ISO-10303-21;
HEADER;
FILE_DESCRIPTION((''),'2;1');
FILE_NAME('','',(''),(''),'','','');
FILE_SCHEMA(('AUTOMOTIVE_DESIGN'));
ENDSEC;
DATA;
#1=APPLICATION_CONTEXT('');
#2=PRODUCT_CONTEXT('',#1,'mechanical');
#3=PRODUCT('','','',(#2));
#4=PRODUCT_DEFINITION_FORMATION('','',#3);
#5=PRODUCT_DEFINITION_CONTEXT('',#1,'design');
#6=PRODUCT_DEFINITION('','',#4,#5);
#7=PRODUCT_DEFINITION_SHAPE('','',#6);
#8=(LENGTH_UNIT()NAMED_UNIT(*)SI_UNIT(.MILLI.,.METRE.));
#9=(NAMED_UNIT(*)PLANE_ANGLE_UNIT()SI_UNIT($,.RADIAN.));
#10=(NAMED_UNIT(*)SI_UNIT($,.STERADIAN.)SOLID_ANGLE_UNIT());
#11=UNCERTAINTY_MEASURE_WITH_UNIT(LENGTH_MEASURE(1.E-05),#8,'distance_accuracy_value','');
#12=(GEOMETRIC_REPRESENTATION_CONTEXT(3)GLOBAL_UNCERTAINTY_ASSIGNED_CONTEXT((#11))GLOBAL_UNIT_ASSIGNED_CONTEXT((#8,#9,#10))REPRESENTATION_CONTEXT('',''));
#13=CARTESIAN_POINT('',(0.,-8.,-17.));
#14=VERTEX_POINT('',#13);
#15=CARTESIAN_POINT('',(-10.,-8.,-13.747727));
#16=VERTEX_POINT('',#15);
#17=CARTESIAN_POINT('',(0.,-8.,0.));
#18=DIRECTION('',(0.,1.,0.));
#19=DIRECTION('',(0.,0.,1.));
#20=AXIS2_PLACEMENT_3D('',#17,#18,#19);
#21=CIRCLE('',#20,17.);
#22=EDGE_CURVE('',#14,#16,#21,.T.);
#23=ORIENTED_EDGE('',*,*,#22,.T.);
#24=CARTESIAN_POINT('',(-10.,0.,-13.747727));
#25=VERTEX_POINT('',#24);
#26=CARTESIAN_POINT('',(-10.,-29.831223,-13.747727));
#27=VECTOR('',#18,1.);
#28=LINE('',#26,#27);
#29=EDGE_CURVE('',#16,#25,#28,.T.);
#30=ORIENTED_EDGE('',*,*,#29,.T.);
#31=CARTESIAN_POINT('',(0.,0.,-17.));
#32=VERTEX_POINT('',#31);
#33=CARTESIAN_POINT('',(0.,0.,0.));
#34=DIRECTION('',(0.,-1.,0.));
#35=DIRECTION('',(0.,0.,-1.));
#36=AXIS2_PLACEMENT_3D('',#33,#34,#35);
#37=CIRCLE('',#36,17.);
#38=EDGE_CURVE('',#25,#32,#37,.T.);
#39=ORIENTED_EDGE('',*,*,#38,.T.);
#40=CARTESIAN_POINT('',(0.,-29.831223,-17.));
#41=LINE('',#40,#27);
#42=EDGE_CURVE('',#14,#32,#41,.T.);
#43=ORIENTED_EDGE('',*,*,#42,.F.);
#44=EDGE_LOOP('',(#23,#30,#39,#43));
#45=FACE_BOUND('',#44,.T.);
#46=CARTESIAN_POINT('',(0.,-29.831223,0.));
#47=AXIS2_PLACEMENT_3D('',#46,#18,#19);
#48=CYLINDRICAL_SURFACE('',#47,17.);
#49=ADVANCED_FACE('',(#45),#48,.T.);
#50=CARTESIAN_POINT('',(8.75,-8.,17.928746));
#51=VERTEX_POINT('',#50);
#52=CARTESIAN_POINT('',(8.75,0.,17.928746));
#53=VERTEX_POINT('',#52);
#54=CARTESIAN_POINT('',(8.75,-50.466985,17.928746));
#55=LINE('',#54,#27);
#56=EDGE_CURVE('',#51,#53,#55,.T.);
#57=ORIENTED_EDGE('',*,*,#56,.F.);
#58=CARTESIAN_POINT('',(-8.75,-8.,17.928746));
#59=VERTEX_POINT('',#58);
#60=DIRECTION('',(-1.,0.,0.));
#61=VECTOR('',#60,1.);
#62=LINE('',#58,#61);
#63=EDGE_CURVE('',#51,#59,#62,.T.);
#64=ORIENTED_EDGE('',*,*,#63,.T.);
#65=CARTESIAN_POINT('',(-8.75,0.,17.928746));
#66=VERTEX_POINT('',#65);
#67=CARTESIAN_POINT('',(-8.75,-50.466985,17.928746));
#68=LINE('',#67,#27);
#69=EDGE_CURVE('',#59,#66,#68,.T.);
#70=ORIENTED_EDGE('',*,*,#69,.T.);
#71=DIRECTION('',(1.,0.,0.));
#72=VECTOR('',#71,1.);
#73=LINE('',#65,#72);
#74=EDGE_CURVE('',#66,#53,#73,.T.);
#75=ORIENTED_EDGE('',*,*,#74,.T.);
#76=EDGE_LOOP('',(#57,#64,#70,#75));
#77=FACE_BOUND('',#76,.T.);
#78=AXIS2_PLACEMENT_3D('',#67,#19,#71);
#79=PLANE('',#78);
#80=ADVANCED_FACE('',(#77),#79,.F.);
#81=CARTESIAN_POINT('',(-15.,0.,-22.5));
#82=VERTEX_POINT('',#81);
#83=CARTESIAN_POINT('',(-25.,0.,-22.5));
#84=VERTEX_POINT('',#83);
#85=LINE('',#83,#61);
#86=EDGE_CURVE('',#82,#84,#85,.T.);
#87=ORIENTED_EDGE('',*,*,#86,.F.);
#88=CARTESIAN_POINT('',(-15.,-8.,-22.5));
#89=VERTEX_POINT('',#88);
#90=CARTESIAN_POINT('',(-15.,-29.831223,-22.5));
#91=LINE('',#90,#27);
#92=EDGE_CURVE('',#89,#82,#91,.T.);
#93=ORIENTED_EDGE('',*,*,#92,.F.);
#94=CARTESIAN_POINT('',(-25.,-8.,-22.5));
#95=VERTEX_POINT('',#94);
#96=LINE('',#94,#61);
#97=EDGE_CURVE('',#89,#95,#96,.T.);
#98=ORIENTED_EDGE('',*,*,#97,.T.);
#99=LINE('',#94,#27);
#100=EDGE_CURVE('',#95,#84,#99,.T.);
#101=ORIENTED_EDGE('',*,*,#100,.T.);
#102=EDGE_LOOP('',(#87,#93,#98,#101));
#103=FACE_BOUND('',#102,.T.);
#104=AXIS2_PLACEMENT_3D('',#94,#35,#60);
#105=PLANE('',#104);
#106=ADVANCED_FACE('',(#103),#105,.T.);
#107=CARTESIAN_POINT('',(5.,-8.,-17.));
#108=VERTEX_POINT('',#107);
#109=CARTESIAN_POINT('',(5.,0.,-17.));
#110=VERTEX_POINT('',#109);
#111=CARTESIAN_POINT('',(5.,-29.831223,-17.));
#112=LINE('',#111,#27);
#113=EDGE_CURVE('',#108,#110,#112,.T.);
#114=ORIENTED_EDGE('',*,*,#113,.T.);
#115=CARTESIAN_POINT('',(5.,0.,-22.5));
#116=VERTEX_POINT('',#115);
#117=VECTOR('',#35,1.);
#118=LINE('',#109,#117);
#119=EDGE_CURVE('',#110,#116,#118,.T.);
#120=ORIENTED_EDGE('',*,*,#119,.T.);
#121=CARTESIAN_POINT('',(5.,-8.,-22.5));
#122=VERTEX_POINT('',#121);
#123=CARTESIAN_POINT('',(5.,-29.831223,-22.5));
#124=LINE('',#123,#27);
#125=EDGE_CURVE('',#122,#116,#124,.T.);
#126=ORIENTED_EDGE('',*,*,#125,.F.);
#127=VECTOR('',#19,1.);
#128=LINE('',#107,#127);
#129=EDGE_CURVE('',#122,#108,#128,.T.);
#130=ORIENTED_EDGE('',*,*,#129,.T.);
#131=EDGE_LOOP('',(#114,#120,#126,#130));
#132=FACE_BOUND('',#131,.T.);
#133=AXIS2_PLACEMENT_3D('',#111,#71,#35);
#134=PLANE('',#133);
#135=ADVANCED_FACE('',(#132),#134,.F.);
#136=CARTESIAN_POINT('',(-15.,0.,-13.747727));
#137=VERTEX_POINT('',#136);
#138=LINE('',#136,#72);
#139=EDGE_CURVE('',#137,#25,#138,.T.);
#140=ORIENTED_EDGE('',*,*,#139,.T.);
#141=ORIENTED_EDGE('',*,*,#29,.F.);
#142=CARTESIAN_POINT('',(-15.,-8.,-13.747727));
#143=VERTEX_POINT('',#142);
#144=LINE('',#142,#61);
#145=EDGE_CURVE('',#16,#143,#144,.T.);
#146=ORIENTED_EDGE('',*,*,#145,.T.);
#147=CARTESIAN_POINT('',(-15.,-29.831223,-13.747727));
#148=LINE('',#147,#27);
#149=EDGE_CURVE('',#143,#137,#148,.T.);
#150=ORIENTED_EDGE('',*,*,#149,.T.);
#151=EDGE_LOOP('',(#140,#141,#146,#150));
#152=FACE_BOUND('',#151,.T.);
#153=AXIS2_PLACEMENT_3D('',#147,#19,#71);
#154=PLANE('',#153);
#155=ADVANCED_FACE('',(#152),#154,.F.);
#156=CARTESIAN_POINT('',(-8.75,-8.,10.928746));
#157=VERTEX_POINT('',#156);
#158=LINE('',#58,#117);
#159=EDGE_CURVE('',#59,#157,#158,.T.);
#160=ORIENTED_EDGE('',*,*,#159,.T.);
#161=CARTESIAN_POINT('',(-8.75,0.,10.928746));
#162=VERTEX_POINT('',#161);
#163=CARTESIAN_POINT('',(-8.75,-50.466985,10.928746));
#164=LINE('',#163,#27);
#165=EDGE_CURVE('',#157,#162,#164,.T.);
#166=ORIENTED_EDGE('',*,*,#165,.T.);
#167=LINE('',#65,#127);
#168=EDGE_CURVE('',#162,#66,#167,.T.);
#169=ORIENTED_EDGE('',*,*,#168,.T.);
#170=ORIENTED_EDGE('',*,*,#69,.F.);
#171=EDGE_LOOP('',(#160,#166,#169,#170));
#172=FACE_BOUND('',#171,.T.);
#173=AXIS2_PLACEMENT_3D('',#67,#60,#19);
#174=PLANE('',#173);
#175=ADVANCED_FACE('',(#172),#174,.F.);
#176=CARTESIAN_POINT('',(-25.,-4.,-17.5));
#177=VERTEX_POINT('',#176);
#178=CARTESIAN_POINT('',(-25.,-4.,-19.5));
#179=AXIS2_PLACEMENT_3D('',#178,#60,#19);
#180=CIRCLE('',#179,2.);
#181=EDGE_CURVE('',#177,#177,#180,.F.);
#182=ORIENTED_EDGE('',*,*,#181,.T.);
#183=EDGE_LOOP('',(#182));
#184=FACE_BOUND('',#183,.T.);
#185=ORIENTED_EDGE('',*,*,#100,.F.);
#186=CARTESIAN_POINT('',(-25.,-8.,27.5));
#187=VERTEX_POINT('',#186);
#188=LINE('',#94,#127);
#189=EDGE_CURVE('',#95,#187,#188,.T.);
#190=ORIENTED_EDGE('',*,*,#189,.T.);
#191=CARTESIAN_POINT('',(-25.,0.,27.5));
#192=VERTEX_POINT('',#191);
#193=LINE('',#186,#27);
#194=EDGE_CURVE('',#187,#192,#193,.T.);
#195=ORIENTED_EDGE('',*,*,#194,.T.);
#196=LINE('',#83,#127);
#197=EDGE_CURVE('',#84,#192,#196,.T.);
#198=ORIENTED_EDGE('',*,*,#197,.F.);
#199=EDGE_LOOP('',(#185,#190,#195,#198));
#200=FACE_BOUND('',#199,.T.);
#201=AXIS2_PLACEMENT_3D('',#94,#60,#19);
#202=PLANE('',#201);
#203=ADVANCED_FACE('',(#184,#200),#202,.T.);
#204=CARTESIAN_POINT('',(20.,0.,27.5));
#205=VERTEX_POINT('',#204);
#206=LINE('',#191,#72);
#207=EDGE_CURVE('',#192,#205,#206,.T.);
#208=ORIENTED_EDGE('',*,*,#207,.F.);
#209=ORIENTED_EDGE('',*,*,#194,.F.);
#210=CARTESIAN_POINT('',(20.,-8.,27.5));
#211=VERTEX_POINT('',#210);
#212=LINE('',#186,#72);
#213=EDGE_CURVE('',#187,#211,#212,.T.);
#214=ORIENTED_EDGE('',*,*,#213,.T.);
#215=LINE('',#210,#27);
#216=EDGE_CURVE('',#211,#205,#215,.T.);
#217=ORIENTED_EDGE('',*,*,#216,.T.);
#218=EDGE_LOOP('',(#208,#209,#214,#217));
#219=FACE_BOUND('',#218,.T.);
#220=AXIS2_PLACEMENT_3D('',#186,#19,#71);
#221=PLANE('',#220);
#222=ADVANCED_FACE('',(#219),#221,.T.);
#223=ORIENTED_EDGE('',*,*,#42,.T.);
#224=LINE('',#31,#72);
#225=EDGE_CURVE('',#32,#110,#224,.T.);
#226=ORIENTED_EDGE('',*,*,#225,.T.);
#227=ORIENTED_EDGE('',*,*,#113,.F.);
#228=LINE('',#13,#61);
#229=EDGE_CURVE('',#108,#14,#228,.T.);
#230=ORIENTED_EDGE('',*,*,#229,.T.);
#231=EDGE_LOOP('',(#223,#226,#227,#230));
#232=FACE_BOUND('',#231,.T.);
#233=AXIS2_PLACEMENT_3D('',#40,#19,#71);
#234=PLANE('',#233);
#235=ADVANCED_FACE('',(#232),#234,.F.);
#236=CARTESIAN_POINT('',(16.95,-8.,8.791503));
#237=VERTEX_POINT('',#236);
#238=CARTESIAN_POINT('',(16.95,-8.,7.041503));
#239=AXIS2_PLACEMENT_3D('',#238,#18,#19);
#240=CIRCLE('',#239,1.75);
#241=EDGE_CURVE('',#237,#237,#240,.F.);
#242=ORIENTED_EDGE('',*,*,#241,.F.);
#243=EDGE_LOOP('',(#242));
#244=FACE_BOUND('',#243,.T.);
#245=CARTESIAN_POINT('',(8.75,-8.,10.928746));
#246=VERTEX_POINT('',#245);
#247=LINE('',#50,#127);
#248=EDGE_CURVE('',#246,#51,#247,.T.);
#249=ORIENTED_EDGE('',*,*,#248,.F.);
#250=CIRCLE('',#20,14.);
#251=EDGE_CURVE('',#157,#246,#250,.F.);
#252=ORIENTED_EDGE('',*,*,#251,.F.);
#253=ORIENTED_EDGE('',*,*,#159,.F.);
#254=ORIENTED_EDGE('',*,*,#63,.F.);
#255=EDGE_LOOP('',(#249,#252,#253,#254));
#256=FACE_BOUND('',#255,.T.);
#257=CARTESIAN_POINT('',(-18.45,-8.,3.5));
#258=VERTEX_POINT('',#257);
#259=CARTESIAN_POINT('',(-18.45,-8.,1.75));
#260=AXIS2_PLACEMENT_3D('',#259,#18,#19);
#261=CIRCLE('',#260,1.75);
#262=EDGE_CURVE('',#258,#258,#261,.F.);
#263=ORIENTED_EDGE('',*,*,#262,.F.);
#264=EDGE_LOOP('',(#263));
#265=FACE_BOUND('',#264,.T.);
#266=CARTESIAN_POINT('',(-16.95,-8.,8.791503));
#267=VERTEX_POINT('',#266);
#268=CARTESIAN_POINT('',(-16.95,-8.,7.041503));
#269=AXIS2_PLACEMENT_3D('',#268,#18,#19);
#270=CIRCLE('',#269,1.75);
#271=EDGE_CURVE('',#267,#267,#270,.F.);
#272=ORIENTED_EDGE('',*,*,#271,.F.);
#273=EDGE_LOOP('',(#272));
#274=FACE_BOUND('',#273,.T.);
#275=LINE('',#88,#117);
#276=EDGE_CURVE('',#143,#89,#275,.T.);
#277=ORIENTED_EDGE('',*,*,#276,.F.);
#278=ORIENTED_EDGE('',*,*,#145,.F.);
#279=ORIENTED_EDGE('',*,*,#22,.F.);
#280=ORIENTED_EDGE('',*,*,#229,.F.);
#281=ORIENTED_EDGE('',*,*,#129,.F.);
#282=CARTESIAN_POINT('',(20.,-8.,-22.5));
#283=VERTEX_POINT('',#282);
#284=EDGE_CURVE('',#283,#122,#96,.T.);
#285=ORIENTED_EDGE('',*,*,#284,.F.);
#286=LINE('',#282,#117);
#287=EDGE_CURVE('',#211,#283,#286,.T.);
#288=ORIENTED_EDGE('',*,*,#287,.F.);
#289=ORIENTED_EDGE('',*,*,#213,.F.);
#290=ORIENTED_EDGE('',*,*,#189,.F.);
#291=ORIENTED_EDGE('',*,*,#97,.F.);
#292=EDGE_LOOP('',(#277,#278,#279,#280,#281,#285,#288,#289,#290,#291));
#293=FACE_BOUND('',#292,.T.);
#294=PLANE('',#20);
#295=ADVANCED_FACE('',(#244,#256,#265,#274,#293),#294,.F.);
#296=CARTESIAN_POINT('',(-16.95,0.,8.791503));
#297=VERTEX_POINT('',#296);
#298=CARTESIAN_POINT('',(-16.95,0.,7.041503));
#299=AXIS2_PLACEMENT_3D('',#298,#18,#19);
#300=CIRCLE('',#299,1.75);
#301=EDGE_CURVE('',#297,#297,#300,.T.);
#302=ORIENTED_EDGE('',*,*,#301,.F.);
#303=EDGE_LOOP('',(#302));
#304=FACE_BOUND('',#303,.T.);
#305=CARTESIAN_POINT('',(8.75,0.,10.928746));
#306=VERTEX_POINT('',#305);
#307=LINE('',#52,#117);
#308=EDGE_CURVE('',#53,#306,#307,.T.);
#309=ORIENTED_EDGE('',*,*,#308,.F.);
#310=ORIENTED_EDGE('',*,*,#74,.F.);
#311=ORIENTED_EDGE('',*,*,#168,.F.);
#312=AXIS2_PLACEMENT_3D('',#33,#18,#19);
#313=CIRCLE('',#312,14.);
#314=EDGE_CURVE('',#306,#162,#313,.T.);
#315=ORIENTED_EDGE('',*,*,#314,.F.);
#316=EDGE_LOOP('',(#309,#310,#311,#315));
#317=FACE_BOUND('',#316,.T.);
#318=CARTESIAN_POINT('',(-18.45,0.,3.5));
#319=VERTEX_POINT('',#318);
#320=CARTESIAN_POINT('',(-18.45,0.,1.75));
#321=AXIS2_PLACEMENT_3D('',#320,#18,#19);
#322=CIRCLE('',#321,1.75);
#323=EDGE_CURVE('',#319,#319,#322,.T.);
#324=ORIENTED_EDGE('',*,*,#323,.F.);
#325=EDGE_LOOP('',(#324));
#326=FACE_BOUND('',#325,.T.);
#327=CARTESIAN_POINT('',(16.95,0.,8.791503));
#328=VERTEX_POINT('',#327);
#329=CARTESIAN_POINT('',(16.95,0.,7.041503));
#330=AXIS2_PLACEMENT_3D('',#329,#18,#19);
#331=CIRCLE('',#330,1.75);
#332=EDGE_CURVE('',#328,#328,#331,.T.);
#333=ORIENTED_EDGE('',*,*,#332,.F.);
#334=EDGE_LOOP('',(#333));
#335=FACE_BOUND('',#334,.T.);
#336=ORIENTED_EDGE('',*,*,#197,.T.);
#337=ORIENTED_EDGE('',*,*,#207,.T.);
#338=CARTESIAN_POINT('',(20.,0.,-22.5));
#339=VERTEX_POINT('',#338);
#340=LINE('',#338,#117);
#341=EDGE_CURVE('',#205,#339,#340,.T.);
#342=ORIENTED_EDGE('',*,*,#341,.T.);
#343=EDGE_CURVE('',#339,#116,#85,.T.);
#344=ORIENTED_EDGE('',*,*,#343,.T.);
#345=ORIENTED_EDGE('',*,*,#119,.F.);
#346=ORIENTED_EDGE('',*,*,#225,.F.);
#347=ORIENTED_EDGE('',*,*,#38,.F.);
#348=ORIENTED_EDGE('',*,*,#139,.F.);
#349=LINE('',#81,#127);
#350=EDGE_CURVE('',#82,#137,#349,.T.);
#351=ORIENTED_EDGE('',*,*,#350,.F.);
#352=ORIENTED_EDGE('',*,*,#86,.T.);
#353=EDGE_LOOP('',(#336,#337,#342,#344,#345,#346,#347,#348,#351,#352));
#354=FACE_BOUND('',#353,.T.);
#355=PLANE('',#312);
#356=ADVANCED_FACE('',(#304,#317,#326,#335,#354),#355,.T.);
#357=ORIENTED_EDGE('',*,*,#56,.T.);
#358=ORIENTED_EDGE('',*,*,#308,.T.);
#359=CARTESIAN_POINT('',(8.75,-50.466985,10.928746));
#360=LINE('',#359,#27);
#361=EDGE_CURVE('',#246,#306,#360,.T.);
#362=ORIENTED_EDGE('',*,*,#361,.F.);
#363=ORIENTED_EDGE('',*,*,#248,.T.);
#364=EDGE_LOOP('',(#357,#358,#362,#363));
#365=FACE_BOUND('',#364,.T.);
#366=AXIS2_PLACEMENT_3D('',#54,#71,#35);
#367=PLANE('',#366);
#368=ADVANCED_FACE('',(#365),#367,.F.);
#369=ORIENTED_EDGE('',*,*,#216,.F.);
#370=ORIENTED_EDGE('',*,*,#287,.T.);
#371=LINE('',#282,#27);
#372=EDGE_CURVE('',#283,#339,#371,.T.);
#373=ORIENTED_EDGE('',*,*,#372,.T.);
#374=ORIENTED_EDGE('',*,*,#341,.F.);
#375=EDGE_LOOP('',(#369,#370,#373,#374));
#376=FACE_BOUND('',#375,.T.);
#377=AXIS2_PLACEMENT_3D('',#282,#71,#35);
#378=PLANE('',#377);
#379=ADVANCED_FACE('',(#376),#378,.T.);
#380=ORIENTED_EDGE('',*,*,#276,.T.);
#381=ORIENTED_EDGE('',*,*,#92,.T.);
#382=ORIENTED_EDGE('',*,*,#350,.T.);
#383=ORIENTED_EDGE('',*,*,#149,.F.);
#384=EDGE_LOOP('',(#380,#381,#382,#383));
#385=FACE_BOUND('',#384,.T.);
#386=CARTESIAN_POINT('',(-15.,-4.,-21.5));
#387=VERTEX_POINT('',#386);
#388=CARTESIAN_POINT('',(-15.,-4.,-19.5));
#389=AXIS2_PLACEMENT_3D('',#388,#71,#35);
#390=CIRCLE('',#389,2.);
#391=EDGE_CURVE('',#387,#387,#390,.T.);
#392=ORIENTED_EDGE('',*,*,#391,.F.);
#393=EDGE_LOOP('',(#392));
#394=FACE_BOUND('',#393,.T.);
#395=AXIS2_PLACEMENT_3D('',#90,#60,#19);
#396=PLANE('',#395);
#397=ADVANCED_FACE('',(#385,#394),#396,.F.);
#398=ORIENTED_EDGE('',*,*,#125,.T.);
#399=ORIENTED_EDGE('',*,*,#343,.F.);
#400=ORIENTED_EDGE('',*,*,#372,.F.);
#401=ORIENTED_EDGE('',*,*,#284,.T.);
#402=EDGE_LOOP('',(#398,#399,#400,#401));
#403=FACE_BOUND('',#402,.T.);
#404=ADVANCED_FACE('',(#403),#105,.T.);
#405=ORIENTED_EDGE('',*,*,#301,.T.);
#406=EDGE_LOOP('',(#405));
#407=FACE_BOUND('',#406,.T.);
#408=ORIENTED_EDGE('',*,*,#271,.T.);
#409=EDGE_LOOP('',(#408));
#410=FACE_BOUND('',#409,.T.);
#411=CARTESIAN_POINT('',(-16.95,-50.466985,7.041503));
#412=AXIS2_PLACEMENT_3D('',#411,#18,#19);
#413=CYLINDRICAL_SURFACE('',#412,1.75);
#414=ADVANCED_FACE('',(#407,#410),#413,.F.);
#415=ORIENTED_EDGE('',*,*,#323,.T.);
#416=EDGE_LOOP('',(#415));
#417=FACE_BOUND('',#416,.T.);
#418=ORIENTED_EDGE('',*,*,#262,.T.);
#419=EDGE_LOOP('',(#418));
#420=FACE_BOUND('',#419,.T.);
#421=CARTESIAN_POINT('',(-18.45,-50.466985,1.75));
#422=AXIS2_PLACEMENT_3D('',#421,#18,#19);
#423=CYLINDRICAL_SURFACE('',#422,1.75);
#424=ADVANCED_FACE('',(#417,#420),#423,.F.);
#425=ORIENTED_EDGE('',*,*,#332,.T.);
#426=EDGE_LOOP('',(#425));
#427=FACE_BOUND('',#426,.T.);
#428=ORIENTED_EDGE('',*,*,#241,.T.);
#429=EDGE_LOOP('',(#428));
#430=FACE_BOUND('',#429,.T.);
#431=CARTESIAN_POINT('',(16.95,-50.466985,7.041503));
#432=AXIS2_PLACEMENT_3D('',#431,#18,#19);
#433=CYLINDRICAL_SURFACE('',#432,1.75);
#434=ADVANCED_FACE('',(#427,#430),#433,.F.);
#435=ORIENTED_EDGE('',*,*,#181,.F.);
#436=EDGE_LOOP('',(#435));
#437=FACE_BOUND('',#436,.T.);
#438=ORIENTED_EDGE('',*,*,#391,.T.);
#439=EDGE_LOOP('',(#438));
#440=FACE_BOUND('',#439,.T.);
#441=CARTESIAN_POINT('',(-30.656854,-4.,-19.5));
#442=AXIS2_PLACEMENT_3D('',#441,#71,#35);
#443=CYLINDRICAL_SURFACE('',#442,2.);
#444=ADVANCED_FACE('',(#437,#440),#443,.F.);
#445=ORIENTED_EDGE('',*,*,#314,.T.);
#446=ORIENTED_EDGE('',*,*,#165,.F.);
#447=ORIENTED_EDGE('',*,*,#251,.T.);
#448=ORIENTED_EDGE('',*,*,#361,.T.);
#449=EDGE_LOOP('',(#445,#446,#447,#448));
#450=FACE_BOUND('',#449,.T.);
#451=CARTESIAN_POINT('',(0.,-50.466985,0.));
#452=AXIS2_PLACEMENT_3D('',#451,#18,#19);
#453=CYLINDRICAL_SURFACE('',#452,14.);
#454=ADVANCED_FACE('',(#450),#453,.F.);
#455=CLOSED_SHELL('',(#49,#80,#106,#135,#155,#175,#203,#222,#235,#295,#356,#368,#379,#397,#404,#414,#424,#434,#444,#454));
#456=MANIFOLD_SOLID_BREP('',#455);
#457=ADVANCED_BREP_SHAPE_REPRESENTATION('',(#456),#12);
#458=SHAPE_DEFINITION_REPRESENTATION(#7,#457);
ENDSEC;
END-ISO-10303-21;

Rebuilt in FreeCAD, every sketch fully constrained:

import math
import FreeCAD as App
import Part
import Sketcher
from FreeCAD import Vector
Q = App.Units.Quantity


def add_polygon(sketch, points):
    """Adds a closed chain of lines whose ends are joined by coincident constraints."""
    first, n = sketch.GeometryCount, len(points)
    for a, b in zip(points, points[1:] + points[:1]):
        sketch.addGeometry(Part.LineSegment(App.Vector(*a, 0), App.Vector(*b, 0)), False)
    for i in range(n):
        sketch.addConstraint(Sketcher.Constraint("Coincident", first + i, 2, first + (i + 1) % n, 1))

doc = App.newDocument("Part")
body = doc.addObject("PartDesign::Body", "Body")

# Sketch on XZ plane
sketch1 = body.newObject("Sketcher::SketchObject", "Sketch")
sketch1.AttachmentSupport = (doc.getObject("XZ_Plane"), [""])
sketch1.MapMode = "FlatFace"
add_polygon(sketch1, [(-25, -22), (-25, 28), (20, 28), (20, -22)])  # lines 0-3
sketch1.addConstraint([
    Sketcher.Constraint("Vertical", 0),
    Sketcher.Constraint("Horizontal", 1),
    Sketcher.Constraint("Vertical", 2),
    Sketcher.Constraint("Horizontal", 3),
    Sketcher.Constraint("DistanceX", 1, 1, 1, 2, Q("45 mm")),
    Sketcher.Constraint("DistanceY", 0, 1, 0, 2, Q("50 mm")),
    Sketcher.Constraint("DistanceX", 0, 2, -1, 1, Q("25 mm")),
    Sketcher.Constraint("DistanceY", -1, 1, 0, 2, Q("27.5 mm")),
])
pad1 = body.newObject("PartDesign::Pad", "Pad")
pad1.Profile = sketch1
pad1.Length = 8

# Sketch on XZ plane
sketch2 = body.newObject("Sketcher::SketchObject", "Sketch001")
sketch2.AttachmentSupport = (doc.getObject("XZ_Plane"), [""])
sketch2.MapMode = "FlatFace"
sketch2.addGeometry([
    Part.Circle(Vector(-18.4, 1.8, 0), Vector(0, 0, 1), 1.8),  # 0
    Part.Circle(Vector(16.9, 7, 0), Vector(0, 0, 1), 1.8),  # 1
    Part.Circle(Vector(-16.9, 7, 0), Vector(0, 0, 1), 1.8),  # 2
    Part.LineSegment(Vector(8.8, 17.9, 0), Vector(8.8, 10.9, 0)),  # 3
    Part.ArcOfCircle(Part.Circle(Vector(0, 0, 0), Vector(0, 0, 1), 14), math.radians(129), math.radians(411)),  # 4
    Part.LineSegment(Vector(-8.8, 10.9, 0), Vector(-8.8, 17.9, 0)),  # 5
    Part.LineSegment(Vector(-8.8, 17.9, 0), Vector(8.8, 17.9, 0)),  # 6
], False)
sketch2.addConstraint([
    Sketcher.Constraint("Coincident", 3, 2, 4, 2),
    Sketcher.Constraint("Coincident", 4, 1, 5, 1),
    Sketcher.Constraint("Coincident", 5, 2, 6, 1),
    Sketcher.Constraint("Coincident", 6, 2, 3, 1),
    Sketcher.Constraint("Vertical", 3),
    Sketcher.Constraint("Vertical", 5),
    Sketcher.Constraint("Horizontal", 6),
    Sketcher.Constraint("Coincident", 4, 3, -1, 1),
    Sketcher.Constraint("Equal", 0, 1),
    Sketcher.Constraint("Equal", 1, 2),
    Sketcher.Constraint("Symmetric", 1, 3, 2, 3, -2),
    Sketcher.Constraint("Horizontal", 3, 2, 4, 1),
    Sketcher.Constraint("Radius", 4, Q("14 mm")),
    Sketcher.Constraint("Diameter", 0, Q("3.5 mm")),
    Sketcher.Constraint("DistanceY", 3, 2, 3, 1, Q("7 mm")),
    Sketcher.Constraint("DistanceX", 6, 1, 6, 2, Q("17.5 mm")),
    Sketcher.Constraint("DistanceX", 0, 3, 1, 3, Q("35.4 mm")),
    Sketcher.Constraint("DistanceX", 0, 3, 2, 3, Q("1.5 mm")),
    Sketcher.Constraint("DistanceY", -1, 1, 0, 3, Q("1.75 mm")),
    Sketcher.Constraint("DistanceY", -1, 1, 1, 3, Q("7.041503 mm")),
])
pocket1 = body.newObject("PartDesign::Pocket", "Pocket")
pocket1.Profile = sketch2
pocket1.Length = 8
pocket1.Reversed = True

# Sketch on XZ plane
sketch3 = body.newObject("Sketcher::SketchObject", "Sketch002")
sketch3.AttachmentSupport = (doc.getObject("XZ_Plane"), [""])
sketch3.MapMode = "FlatFace"
sketch3.addGeometry([
    Part.LineSegment(Vector(-15, -22, 0), Vector(-15, -14, 0)),  # 0
    Part.LineSegment(Vector(-15, -14, 0), Vector(-10, -14, 0)),  # 1
    Part.ArcOfCircle(Part.Circle(Vector(0, 0, 0), Vector(0, 0, 1), 17), math.radians(-126), math.radians(-90)),  # 2
    Part.LineSegment(Vector(0, -17, 0), Vector(5, -17, 0)),  # 3
    Part.LineSegment(Vector(5, -17, 0), Vector(5, -22, 0)),  # 4
    Part.LineSegment(Vector(5, -22, 0), Vector(-15, -22, 0)),  # 5
], False)
sketch3.addConstraint([
    Sketcher.Constraint("Coincident", 0, 2, 1, 1),
    Sketcher.Constraint("Coincident", 1, 2, 2, 1),
    Sketcher.Constraint("Tangent", 2, 2, 3, 1),
    Sketcher.Constraint("Coincident", 3, 2, 4, 1),
    Sketcher.Constraint("Coincident", 4, 2, 5, 1),
    Sketcher.Constraint("Coincident", 5, 2, 0, 1),
    Sketcher.Constraint("Vertical", 0),
    Sketcher.Constraint("Horizontal", 1),
    Sketcher.Constraint("Horizontal", 3),
    Sketcher.Constraint("Vertical", 4),
    Sketcher.Constraint("Horizontal", 5),
    Sketcher.Constraint("Coincident", 2, 3, -1, 1),
    Sketcher.Constraint("Equal", 1, 3),
    Sketcher.Constraint("Radius", 2, Q("17 mm")),
    Sketcher.Constraint("DistanceX", 1, 1, 1, 2, Q("5 mm")),
    Sketcher.Constraint("DistanceX", 5, 2, 5, 1, Q("20 mm")),
    Sketcher.Constraint("DistanceY", 4, 2, 4, 1, Q("5.5 mm")),
])
pocket2 = body.newObject("PartDesign::Pocket", "Pocket001")
pocket2.Profile = sketch3
pocket2.Length = 8
pocket2.Reversed = True

# Sketch on YZ plane
sketch4 = body.newObject("Sketcher::SketchObject", "Sketch003")
sketch4.AttachmentSupport = (doc.getObject("YZ_Plane"), [""])
sketch4.MapMode = "FlatFace"
sketch4.AttachmentOffset = App.Placement(Vector(0, 0, -15), App.Rotation())
sketch4.addGeometry(Part.Circle(Vector(-4, -19.5, 0), Vector(0, 0, 1), 2), False)
sketch4.addConstraint([
    Sketcher.Constraint("Diameter", 0, Q("4 mm")),
    Sketcher.Constraint("DistanceX", 0, 3, -1, 1, Q("4 mm")),
    Sketcher.Constraint("DistanceY", 0, 3, -1, 1, Q("19.5 mm")),
])
pocket3 = body.newObject("PartDesign::Pocket", "Pocket002")
pocket3.Profile = sketch4
pocket3.Length = 10

doc.recompute()
